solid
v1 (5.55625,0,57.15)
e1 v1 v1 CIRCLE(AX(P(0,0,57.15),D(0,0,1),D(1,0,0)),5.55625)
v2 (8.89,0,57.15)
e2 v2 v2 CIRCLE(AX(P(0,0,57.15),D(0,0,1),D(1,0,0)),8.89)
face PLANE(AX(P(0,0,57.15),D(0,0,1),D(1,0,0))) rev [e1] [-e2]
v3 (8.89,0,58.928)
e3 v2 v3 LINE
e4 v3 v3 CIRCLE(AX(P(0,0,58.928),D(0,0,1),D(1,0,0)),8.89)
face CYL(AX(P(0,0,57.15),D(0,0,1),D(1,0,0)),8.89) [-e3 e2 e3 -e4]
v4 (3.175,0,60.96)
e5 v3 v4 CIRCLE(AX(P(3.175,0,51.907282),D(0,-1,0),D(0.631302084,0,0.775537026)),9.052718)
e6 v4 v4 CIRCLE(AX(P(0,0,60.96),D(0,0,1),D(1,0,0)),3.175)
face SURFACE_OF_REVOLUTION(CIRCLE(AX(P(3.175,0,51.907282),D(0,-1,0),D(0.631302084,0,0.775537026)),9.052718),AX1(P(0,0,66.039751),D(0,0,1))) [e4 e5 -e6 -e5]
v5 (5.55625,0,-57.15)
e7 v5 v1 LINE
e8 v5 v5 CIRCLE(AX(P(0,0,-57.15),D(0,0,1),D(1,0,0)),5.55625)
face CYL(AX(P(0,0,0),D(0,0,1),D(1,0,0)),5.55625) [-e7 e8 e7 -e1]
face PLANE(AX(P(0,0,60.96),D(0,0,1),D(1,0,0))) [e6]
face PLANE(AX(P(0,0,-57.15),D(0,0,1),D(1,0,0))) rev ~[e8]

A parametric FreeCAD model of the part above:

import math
import FreeCAD as App
import Part
import Sketcher

V = App.Vector
Q = App.Units.Quantity

doc = App.newDocument("Part")
body = doc.addObject("PartDesign::Body", "Body")

sketch1 = body.newObject("Sketcher::SketchObject", "Sketch")
sketch1.AttachmentSupport = (doc.getObject("XY_Plane"), [""])
sketch1.MapMode = "FlatFace"
sketch1.addGeometry(Part.Circle(V(0, 0, 0), V(0, 0, 1), 5.55625), False)
sketch1.addConstraint(Sketcher.Constraint("Coincident", 0, 3, -1, 1))
sketch1.addConstraint(Sketcher.Constraint("Diameter", 0, Q("0.4375 in")))
pad1 = body.newObject("PartDesign::Pad", "Pad")
pad1.Profile = sketch1
pad1.Length = Q("4.5 in")
pad1.Midplane = True

sketch2 = body.newObject("Sketcher::SketchObject", "Sketch001")
sketch2.AttachmentSupport = (doc.getObject("XZ_Plane"), [""])
sketch2.MapMode = "FlatFace"
sketch2.addGeometry(Part.LineSegment(V(0, 57.15, 0), V(8.89, 57.15, 0)), False)
sketch2.addGeometry(Part.LineSegment(V(8.89, 57.15, 0), V(8.89, 58.928, 0)), False)
sketch2.addGeometry(Part.ArcOfCircle(Part.Circle(V(3.175, 51.907282, 0), V(0, 0, 1), 9.052718), math.radians(50.853747), math.radians(90.000002)), False)
sketch2.addGeometry(Part.LineSegment(V(3.175, 60.96, 0), V(0, 60.96, 0)), False)
sketch2.addGeometry(Part.LineSegment(V(0, 60.96, 0), V(0, 57.15, 0)), False)
sketch2.addConstraint(Sketcher.Constraint("Coincident", 0, 2, 1, 1))
sketch2.addConstraint(Sketcher.Constraint("Coincident", 1, 2, 2, 1))
sketch2.addConstraint(Sketcher.Constraint("Tangent", 2, 2, 3, 1))
sketch2.addConstraint(Sketcher.Constraint("Coincident", 3, 2, 4, 1))
sketch2.addConstraint(Sketcher.Constraint("Coincident", 4, 2, 0, 1))
sketch2.addConstraint(Sketcher.Constraint("Horizontal", 0))
sketch2.addConstraint(Sketcher.Constraint("Vertical", 1))
sketch2.addConstraint(Sketcher.Constraint("Horizontal", 3))
sketch2.addConstraint(Sketcher.Constraint("Vertical", 4))
sketch2.addConstraint(Sketcher.Constraint("PointOnObject", 3, 2, -2))
sketch2.addConstraint(Sketcher.Constraint("DistanceX", 0, 1, 0, 2, Q("0.35 in")))
sketch2.addConstraint(Sketcher.Constraint("DistanceY", 1, 1, 1, 2, Q("0.07 in")))
sketch2.addConstraint(Sketcher.Constraint("DistanceY", 4, 2, 4, 1, Q("0.15 in")))
sketch2.addConstraint(Sketcher.Constraint("DistanceY", -1, 1, 2, 2, Q("2.4 in")))
sketch2.addConstraint(Sketcher.Constraint("DistanceX", 3, 2, 3, 1, Q("0.125 in")))
revolution = body.newObject("PartDesign::Revolution", "Revolution")
revolution.Profile = sketch2
revolution.ReferenceAxis = (sketch2, ["V_Axis"])
revolution.Angle = 360

doc.recompute()
